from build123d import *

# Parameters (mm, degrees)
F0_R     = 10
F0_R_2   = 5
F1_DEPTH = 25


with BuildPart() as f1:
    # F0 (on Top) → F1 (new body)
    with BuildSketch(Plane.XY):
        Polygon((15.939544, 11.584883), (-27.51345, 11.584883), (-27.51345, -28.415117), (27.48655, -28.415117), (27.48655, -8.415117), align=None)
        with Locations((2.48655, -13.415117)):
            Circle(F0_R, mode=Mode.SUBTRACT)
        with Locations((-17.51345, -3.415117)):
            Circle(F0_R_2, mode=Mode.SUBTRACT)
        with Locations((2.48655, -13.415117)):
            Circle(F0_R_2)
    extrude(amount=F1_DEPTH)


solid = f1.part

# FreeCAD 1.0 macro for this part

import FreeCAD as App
import Part
import Sketcher
from FreeCAD import Vector
Q = App.Units.Quantity

doc = App.newDocument("Part")
body = doc.addObject("PartDesign::Body", "Body")
body.AllowCompound = True

# Sketch on XY plane
sketch1 = body.newObject("Sketcher::SketchObject", "Sketch")
sketch1.AttachmentSupport = (doc.getObject("XY_Plane"), [""])
sketch1.MapMode = "FlatFace"
sketch1.addGeometry(Part.LineSegment(Vector(16, 12, 0), Vector(-28, 12, 0)), False)
sketch1.addGeometry(Part.LineSegment(Vector(-28, 12, 0), Vector(-28, -28, 0)), False)
sketch1.addGeometry(Part.LineSegment(Vector(-28, -28, 0), Vector(27, -28, 0)), False)
sketch1.addGeometry(Part.LineSegment(Vector(27, -28, 0), Vector(27, -8, 0)), False)
sketch1.addGeometry(Part.LineSegment(Vector(27, -8, 0), Vector(16, 12, 0)), False)
sketch1.addGeometry(Part.Circle(Vector(2, -13, 0), Vector(0, 0, 1), 10), False)
sketch1.addGeometry(Part.Circle(Vector(-18, -3, 0), Vector(0, 0, 1), 5), False)
sketch1.addGeometry(Part.Circle(Vector(2, -13, 0), Vector(0, 0, 1), 5), False)
sketch1.addConstraint(Sketcher.Constraint("Coincident", 0, 2, 1, 1))
sketch1.addConstraint(Sketcher.Constraint("Coincident", 1, 2, 2, 1))
sketch1.addConstraint(Sketcher.Constraint("Coincident", 2, 2, 3, 1))
sketch1.addConstraint(Sketcher.Constraint("Coincident", 3, 2, 4, 1))
sketch1.addConstraint(Sketcher.Constraint("Coincident", 4, 2, 0, 1))
sketch1.addConstraint(Sketcher.Constraint("Horizontal", 0))
sketch1.addConstraint(Sketcher.Constraint("Vertical", 1))
sketch1.addConstraint(Sketcher.Constraint("Horizontal", 2))
sketch1.addConstraint(Sketcher.Constraint("Vertical", 3))
sketch1.addConstraint(Sketcher.Constraint("Coincident", 7, 3, 5, 3))
sketch1.addConstraint(Sketcher.Constraint("Equal", 6, 7))
sketch1.addConstraint(Sketcher.Constraint("Diameter", 5, Q("20 mm")))
sketch1.addConstraint(Sketcher.Constraint("Diameter", 6, Q("10 mm")))
sketch1.addConstraint(Sketcher.Constraint("DistanceX", 2, 1, 2, 2, Q("55 mm")))
sketch1.addConstraint(Sketcher.Constraint("DistanceY", 1, 2, 1, 1, Q("40 mm")))
sketch1.addConstraint(Sketcher.Constraint("DistanceY", 3, 1, 3, 2, Q("20 mm")))
sketch1.addConstraint(Sketcher.Constraint("Angle", 4, Q("120.000001 deg")))
sketch1.addConstraint(Sketcher.Constraint("DistanceX", 6, 3, 5, 3, Q("20 mm")))
sketch1.addConstraint(Sketcher.Constraint("DistanceY", 5, 3, 6, 3, Q("10 mm")))
sketch1.addConstraint(Sketcher.Constraint("DistanceX", 0, 2, 6, 3, Q("10 mm")))
sketch1.addConstraint(Sketcher.Constraint("DistanceY", 6, 3, 0, 2, Q("15 mm")))
sketch1.addConstraint(Sketcher.Constraint("DistanceX", -1, 1, 5, 3, Q("2.48655 mm")))
sketch1.addConstraint(Sketcher.Constraint("DistanceY", 5, 3, -1, 1, Q("13.415117 mm")))
pad1 = body.newObject("PartDesign::Pad", "Pad")
pad1.Profile = sketch1
pad1.Length = 25

doc.recompute()
